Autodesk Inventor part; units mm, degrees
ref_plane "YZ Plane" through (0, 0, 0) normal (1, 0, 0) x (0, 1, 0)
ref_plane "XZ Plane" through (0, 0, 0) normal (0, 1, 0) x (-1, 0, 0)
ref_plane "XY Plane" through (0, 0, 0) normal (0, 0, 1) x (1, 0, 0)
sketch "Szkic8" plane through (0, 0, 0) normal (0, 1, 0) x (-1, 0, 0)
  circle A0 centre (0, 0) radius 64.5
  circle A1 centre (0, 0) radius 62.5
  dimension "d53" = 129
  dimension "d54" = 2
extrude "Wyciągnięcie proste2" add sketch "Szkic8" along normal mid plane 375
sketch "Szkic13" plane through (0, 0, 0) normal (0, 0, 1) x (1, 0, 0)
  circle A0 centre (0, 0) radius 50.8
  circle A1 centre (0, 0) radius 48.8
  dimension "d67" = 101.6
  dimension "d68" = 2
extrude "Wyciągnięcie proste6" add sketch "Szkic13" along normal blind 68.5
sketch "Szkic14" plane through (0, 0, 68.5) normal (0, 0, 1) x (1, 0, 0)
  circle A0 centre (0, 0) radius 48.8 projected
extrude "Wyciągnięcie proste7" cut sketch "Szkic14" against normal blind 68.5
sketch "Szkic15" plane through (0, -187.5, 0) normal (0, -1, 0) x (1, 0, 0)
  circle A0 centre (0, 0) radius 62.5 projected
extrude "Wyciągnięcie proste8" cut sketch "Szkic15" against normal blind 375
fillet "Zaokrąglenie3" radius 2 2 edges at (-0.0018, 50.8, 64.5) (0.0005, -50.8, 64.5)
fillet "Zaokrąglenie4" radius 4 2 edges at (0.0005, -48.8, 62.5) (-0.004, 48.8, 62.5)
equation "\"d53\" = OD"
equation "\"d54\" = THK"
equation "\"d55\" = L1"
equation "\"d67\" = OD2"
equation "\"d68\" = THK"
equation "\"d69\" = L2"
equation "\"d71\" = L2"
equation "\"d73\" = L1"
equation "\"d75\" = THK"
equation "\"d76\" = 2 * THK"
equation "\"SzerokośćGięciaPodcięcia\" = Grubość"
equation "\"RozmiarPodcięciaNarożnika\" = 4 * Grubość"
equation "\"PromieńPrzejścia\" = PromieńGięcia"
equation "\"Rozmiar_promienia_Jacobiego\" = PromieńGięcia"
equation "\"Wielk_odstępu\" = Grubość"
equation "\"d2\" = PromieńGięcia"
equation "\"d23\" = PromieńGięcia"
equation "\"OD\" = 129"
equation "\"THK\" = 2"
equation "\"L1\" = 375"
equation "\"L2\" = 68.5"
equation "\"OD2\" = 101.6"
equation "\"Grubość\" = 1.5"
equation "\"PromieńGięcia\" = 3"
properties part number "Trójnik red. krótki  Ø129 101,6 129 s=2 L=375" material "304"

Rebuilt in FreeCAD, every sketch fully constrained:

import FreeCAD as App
import Part
import Sketcher

V = App.Vector
Q = App.Units.Quantity


def edges_at(feature, points):
    """Names of the edges that pass closest to the given points."""
    edges = feature.Shape.Edges
    near = lambda p: min(range(len(edges)), key=lambda i: edges[i].distToShape(Part.Vertex(*p))[0])
    return sorted({f"Edge{near(p) + 1}" for p in points})

doc = App.newDocument("Part")
body = doc.addObject("PartDesign::Body", "Body")

sketch1 = doc.addObject("Sketcher::SketchObject", "Sketch")
body.addObject(sketch1)
sketch1.AttachmentSupport = (doc.XZ_Plane, [""])
sketch1.MapMode = "FlatFace"
sketch1.addGeometry(Part.Circle(V(0, 0, 0), V(0, 0, 1), 64.5), False)
sketch1.addGeometry(Part.Circle(V(0, 0, 0), V(0, 0, 1), 62.5), False)
sketch1.addConstraint(Sketcher.Constraint("Coincident", 0, 3, -1, 1))
sketch1.addConstraint(Sketcher.Constraint("Coincident", 1, 3, -1, 1))
sketch1.addConstraint(Sketcher.Constraint("Diameter", 0, Q("129 mm")))
sketch1.addConstraint(Sketcher.Constraint("Diameter", 1, Q("125 mm")))
pad1 = doc.addObject("PartDesign::Pad", "Pad")
body.addObject(pad1)
pad1.Profile = sketch1
pad1.Length = 375
pad1.Midplane = True

sketch2 = doc.addObject("Sketcher::SketchObject", "Sketch001")
body.addObject(sketch2)
sketch2.AttachmentSupport = (doc.XY_Plane, [""])
sketch2.MapMode = "FlatFace"
sketch2.addGeometry(Part.Circle(V(0, 0, 0), V(0, 0, 1), 50.8), False)
sketch2.addGeometry(Part.Circle(V(0, 0, 0), V(0, 0, 1), 48.8), False)
sketch2.addConstraint(Sketcher.Constraint("Coincident", 0, 3, -1, 1))
sketch2.addConstraint(Sketcher.Constraint("Coincident", 1, 3, -1, 1))
sketch2.addConstraint(Sketcher.Constraint("Diameter", 0, Q("101.6 mm")))
sketch2.addConstraint(Sketcher.Constraint("Diameter", 1, Q("97.6 mm")))
pad2 = doc.addObject("PartDesign::Pad", "Pad001")
body.addObject(pad2)
pad2.Profile = sketch2
pad2.Length = 68.5

sketch3 = doc.addObject("Sketcher::SketchObject", "Sketch002")
body.addObject(sketch3)
sketch3.AttachmentSupport = (doc.XY_Plane, [""])
sketch3.MapMode = "FlatFace"
sketch3.AttachmentOffset = App.Placement(V(0, 0, 68.5), App.Rotation())
sketch3.addGeometry(Part.Circle(V(0, 0, 0), V(0, 0, 1), 48.8), False)
sketch3.addConstraint(Sketcher.Constraint("Coincident", 0, 3, -1, 1))
sketch3.addConstraint(Sketcher.Constraint("Diameter", 0, Q("97.6 mm")))
pocket1 = doc.addObject("PartDesign::Pocket", "Pocket")
body.addObject(pocket1)
pocket1.Profile = sketch3
pocket1.Length = 68.5

sketch4 = doc.addObject("Sketcher::SketchObject", "Sketch003")
body.addObject(sketch4)
sketch4.AttachmentSupport = (doc.XZ_Plane, [""])
sketch4.MapMode = "FlatFace"
sketch4.AttachmentOffset = App.Placement(V(0, 0, 187.5), App.Rotation())
sketch4.addGeometry(Part.Circle(V(0, 0, 0), V(0, 0, 1), 62.5), False)
sketch4.addConstraint(Sketcher.Constraint("Coincident", 0, 3, -1, 1))
sketch4.addConstraint(Sketcher.Constraint("Diameter", 0, Q("125 mm")))
pocket2 = doc.addObject("PartDesign::Pocket", "Pocket001")
body.addObject(pocket2)
pocket2.Profile = sketch4
pocket2.Length = 375
doc.recompute()

fillet = doc.addObject("PartDesign::Fillet", "Fillet")
body.addObject(fillet)
fillet.Base = (pocket2, edges_at(pocket2, [(-0.002, 50.8, 64.5), (0.001, -50.8, 64.5)]))
fillet.Radius = 2
doc.recompute()

fillet2 = doc.addObject("PartDesign::Fillet", "Fillet001")
body.addObject(fillet2)
fillet2.Base = (fillet, edges_at(fillet, [(0.001, -48.8, 62.5), (-0.004, 48.8, 62.5)]))
fillet2.Radius = 4

doc.recompute()
